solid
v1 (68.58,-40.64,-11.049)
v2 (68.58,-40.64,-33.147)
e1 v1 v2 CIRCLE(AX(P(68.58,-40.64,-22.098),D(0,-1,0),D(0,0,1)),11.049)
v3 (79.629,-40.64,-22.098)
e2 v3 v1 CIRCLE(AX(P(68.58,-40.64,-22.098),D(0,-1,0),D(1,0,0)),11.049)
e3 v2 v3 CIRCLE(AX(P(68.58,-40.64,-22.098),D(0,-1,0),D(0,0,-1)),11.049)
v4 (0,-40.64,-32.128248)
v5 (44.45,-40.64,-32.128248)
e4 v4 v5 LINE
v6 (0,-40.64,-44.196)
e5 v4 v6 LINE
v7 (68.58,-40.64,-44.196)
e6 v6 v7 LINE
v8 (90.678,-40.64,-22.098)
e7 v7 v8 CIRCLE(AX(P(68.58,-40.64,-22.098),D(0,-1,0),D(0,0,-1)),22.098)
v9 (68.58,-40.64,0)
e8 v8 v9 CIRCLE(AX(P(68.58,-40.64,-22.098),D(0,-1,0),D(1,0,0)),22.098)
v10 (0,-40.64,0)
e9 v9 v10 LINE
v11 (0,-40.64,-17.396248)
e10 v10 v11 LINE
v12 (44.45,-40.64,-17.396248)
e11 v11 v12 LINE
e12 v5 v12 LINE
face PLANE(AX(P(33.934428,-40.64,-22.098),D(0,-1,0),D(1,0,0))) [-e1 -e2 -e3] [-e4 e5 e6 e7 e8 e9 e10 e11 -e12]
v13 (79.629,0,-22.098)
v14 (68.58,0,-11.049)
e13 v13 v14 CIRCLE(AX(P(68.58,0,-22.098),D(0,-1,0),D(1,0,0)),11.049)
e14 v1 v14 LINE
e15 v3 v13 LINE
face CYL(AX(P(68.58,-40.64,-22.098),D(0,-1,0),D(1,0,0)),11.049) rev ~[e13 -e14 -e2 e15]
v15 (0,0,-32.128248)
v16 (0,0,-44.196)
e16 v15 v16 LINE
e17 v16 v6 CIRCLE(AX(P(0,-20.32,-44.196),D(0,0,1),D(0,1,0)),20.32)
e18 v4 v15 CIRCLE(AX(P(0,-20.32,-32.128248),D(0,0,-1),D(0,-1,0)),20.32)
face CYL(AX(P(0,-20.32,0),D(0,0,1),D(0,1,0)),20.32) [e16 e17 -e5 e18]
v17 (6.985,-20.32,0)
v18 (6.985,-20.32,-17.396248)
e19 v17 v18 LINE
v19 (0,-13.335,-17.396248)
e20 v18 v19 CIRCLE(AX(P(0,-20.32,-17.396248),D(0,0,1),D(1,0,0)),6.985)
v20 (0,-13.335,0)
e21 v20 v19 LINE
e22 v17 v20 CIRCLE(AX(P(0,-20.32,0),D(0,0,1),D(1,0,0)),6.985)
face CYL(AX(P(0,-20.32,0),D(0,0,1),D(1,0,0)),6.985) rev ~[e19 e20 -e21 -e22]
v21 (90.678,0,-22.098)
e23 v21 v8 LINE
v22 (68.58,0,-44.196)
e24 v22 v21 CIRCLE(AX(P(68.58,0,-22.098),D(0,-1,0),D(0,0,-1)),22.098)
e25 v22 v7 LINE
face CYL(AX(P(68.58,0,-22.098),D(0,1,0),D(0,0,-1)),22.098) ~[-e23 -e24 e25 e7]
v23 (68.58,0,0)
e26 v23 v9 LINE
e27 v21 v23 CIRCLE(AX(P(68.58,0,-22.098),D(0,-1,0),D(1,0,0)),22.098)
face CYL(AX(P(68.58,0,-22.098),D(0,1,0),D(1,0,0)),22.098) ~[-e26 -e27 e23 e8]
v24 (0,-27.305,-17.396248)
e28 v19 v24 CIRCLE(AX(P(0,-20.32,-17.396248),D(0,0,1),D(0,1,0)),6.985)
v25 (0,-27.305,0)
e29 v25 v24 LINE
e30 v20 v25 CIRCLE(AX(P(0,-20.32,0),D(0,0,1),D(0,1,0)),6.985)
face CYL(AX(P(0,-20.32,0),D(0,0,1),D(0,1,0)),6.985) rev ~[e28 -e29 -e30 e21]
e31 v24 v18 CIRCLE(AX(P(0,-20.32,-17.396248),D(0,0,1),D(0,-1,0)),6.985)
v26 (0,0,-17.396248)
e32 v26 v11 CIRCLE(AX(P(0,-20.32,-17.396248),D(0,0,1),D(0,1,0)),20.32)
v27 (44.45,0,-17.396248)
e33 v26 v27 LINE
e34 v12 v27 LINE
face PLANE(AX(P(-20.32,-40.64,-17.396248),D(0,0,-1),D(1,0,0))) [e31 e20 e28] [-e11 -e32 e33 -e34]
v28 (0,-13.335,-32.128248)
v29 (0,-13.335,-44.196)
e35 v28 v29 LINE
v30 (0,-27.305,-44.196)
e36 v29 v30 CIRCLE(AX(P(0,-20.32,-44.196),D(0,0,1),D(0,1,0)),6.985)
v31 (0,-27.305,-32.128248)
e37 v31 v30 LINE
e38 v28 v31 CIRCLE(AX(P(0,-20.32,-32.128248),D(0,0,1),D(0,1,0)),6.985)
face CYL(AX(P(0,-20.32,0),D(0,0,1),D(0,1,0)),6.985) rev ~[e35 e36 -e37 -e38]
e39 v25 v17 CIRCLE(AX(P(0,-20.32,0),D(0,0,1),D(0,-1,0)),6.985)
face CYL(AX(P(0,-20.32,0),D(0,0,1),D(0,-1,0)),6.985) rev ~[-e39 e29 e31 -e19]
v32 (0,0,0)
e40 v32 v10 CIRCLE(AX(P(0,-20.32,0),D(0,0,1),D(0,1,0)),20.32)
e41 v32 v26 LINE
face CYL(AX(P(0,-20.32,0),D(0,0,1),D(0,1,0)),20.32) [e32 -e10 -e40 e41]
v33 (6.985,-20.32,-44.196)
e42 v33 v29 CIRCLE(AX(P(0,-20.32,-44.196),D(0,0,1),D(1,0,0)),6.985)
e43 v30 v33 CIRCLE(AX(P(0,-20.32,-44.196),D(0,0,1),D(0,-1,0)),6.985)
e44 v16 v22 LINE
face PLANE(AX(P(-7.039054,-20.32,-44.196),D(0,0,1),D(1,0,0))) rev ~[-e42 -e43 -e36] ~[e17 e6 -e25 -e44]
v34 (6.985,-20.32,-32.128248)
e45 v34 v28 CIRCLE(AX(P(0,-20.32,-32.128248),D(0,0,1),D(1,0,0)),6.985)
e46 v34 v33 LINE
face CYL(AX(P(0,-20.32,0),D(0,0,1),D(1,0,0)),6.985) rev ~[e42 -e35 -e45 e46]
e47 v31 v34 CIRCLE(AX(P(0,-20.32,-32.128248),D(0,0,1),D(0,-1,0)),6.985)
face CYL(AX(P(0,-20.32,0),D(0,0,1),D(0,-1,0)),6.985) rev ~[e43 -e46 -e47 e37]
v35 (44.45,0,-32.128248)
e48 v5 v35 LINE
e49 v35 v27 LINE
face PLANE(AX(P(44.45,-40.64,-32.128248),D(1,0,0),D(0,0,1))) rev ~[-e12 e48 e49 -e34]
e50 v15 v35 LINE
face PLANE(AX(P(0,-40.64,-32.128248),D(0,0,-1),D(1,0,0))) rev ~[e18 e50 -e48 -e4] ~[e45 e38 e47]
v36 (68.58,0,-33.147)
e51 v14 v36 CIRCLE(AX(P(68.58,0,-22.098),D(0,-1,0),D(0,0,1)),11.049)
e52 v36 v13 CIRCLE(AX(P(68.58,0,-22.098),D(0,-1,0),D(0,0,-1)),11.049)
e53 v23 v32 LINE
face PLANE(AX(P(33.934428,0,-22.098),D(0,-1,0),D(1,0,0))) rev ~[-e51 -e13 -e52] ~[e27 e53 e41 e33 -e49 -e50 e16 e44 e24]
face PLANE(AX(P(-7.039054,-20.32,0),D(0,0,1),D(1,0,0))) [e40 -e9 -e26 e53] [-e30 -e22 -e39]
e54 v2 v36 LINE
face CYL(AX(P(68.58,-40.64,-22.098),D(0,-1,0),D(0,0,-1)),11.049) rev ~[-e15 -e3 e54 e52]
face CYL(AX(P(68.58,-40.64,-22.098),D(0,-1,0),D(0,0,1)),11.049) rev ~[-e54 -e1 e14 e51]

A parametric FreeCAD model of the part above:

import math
import FreeCAD as App
import Part
import Sketcher
Q = App.Units.Quantity


def add_polygon(sketch, points):
    """Adds a closed chain of lines whose ends are joined by coincident constraints."""
    first, n = sketch.GeometryCount, len(points)
    for a, b in zip(points, points[1:] + points[:1]):
        sketch.addGeometry(Part.LineSegment(App.Vector(*a, 0), App.Vector(*b, 0)), False)
    for i in range(n):
        sketch.addConstraint(Sketcher.Constraint("Coincident", first + i, 2, first + (i + 1) % n, 1))

doc = App.newDocument("Part")
params = doc.addObject("Spreadsheet::Sheet", "Params")
for row, (alias, value) in enumerate([
    ("sketch1_radius", "0.87 in"),
    ("sketch1_width", "2.7 in"),
    ("pad1_length", "1.6 in"),
    ("sketch2_radius", "0.8 in"),
    ("pad2_length", "1.74 in"),
    ("sketch3_width", "1.75 in"),
    ("sketch3_height", "0.58 in"),
    ("sketch4_width", "0.8 in"),
    ("sketch4_height", "0.58 in"),
    ("sketch5_radius", "0.275 in"),
    ("sketch6_radius", "0.435 in"),
], start=1):
    params.set(f"A{row}", alias)
    params.set(f"B{row}", "=" + value)
    params.setAlias(f"B{row}", alias)

body = doc.addObject("PartDesign::Body", "Body")

# Sketch on XZ plane
sketch1 = body.newObject("Sketcher::SketchObject", "Sketch")
sketch1.AttachmentSupport = (doc.getObject("XZ_Plane"), [""])
sketch1.MapMode = "FlatFace"
sketch1.addGeometry([
    Part.LineSegment(App.Vector(68.58, 0, 0), App.Vector(0, 0, 0)),  # 0
    Part.LineSegment(App.Vector(0, 0, 0), App.Vector(0, -44.196, 0)),  # 1
    Part.LineSegment(App.Vector(0, -44.196, 0), App.Vector(68.58, -44.196, 0)),  # 2
    Part.ArcOfCircle(Part.Circle(App.Vector(68.58, -22.098, 0), App.Vector(0, 0, 1), 22.098), math.radians(-90), math.radians(0)),  # 3
    Part.ArcOfCircle(Part.Circle(App.Vector(68.58, -22.098, 0), App.Vector(0, 0, 1), 22.098), math.radians(0), math.radians(90)),  # 4
], False)
sketch1.addConstraint([
    Sketcher.Constraint("Coincident", 0, 2, 1, 1),
    Sketcher.Constraint("Coincident", 1, 2, 2, 1),
    Sketcher.Constraint("Tangent", 2, 2, 3, 1),
    Sketcher.Constraint("Tangent", 3, 2, 4, 1),
    Sketcher.Constraint("Tangent", 4, 2, 0, 1),
    Sketcher.Constraint("Horizontal", 0),
    Sketcher.Constraint("Vertical", 1),
    Sketcher.Constraint("Horizontal", 2),
    Sketcher.Constraint("Coincident", 0, 2, -1, 1),
    Sketcher.Constraint("Equal", 3, 4),
    Sketcher.Constraint("Horizontal", 4, 3, 3, 2),
    Sketcher.Constraint("Radius", 3, Q("0.87 in")),
    Sketcher.Constraint("DistanceX", 0, 2, 0, 1, Q("2.7 in")),
])
sketch1.setExpression("Constraints[11]", "Params.sketch1_radius")
sketch1.setExpression("Constraints[12]", "Params.sketch1_width")
pad1 = body.newObject("PartDesign::Pad", "Pad")
pad1.Profile = sketch1
pad1.setExpression("Length", "Params.pad1_length")

# Sketch on XY plane
sketch2 = body.newObject("Sketcher::SketchObject", "Sketch001")
sketch2.AttachmentSupport = (doc.getObject("XY_Plane"), [""])
sketch2.MapMode = "FlatFace"
sketch2.addGeometry([
    Part.LineSegment(App.Vector(0, -40.64, 0), App.Vector(0, 0, 0)),
    Part.ArcOfCircle(Part.Circle(App.Vector(0, -20.32, 0), App.Vector(0, 0, 1), 20.32), math.radians(90), math.radians(270)),
], False)
sketch2.addConstraint([
    Sketcher.Constraint("Coincident", 0, 1, 1, 2),
    Sketcher.Constraint("Coincident", 1, 1, 0, 2),
    Sketcher.Constraint("Vertical", 0),
    Sketcher.Constraint("Coincident", 1, 1, -1, 1),
    Sketcher.Constraint("PointOnObject", 1, 3, -2),
    Sketcher.Constraint("Radius", 1, Q("0.8 in")),
])
sketch2.setExpression("Constraints[5]", "Params.sketch2_radius")
pad2 = body.newObject("PartDesign::Pad", "Pad001")
pad2.Profile = sketch2
pad2.setExpression("Length", "Params.pad2_length")
pad2.Reversed = True

# Sketch on XZ plane
sketch3 = body.newObject("Sketcher::SketchObject", "Sketch002")
sketch3.AttachmentSupport = (doc.getObject("XZ_Plane"), [""])
sketch3.MapMode = "FlatFace"
sketch3.AttachmentOffset = App.Placement(App.Vector(0, 0, 1.6 * 25.4), App.Rotation())
add_polygon(sketch3, [(0, -17.396248), (0, -32.128248), (44.45, -32.128248), (44.45, -17.396248)])  # lines 0-3
sketch3.addConstraint([
    Sketcher.Constraint("Vertical", 0),
    Sketcher.Constraint("Horizontal", 1),
    Sketcher.Constraint("Vertical", 2),
    Sketcher.Constraint("Horizontal", 3),
    Sketcher.Constraint("PointOnObject", 0, 2, -2),
    Sketcher.Constraint("DistanceX", 1, 1, 1, 2, Q("1.75 in")),
    Sketcher.Constraint("DistanceY", 0, 2, 0, 1, Q("0.58 in")),
    Sketcher.Constraint("DistanceY", 0, 2, -1, 1, Q("32.128248 mm")),
])
sketch3.setExpression("Constraints[9]", "Params.sketch3_width")
sketch3.setExpression("Constraints[10]", "Params.sketch3_height")
pocket1 = body.newObject("PartDesign::Pocket", "Pocket")
pocket1.Profile = sketch3
pocket1.Type = "ThroughAll"

# Sketch on XZ plane
sketch4 = body.newObject("Sketcher::SketchObject", "Sketch003")
sketch4.AttachmentSupport = (doc.getObject("XZ_Plane"), [""])
sketch4.MapMode = "FlatFace"
sketch4.AttachmentOffset = App.Placement(App.Vector(0, 0, 1.6 * 25.4), App.Rotation())
add_polygon(sketch4, [(-20.32, -17.396248), (-20.32, -32.128248), (0, -32.128248), (0, -17.396248)])  # lines 0-3
sketch4.addConstraint([
    Sketcher.Constraint("Vertical", 0),
    Sketcher.Constraint("Horizontal", 1),
    Sketcher.Constraint("Vertical", 2),
    Sketcher.Constraint("Horizontal", 3),
    Sketcher.Constraint("PointOnObject", 1, 2, -2),
    Sketcher.Constraint("DistanceX", 1, 1, 1, 2, Q("0.8 in")),
    Sketcher.Constraint("DistanceY", 0, 2, 0, 1, Q("0.58 in")),
    Sketcher.Constraint("DistanceY", 0, 2, -1, 1, Q("32.128248 mm")),
])
sketch4.setExpression("Constraints[9]", "Params.sketch4_width")
sketch4.setExpression("Constraints[10]", "Params.sketch4_height")
pocket2 = body.newObject("PartDesign::Pocket", "Pocket001")
pocket2.Profile = sketch4
pocket2.Type = "ThroughAll"

# Sketch on XY plane
sketch5 = body.newObject("Sketcher::SketchObject", "Sketch004")
sketch5.AttachmentSupport = (doc.getObject("XY_Plane"), [""])
sketch5.MapMode = "FlatFace"
sketch5.addGeometry([
    Part.ArcOfCircle(Part.Circle(App.Vector(0, -20.32, 0), App.Vector(0, 0, 1), 6.985), math.radians(90), math.radians(270)),
    Part.ArcOfCircle(Part.Circle(App.Vector(0, -20.32, 0), App.Vector(0, 0, 1), 6.985), math.radians(-90), math.radians(0)),
    Part.ArcOfCircle(Part.Circle(App.Vector(0, -20.32, 0), App.Vector(0, 0, 1), 6.985), math.radians(0), math.radians(90)),
], False)
sketch5.addConstraint([
    Sketcher.Constraint("Tangent", 0, 2, 1, 1),
    Sketcher.Constraint("Tangent", 1, 2, 2, 1),
    Sketcher.Constraint("Tangent", 2, 2, 0, 1),
    Sketcher.Constraint("PointOnObject", 0, 3, -2),
    Sketcher.Constraint("PointOnObject", 0, 2, -2),
    Sketcher.Constraint("PointOnObject", 2, 2, -2),
    Sketcher.Constraint("Horizontal", 2, 3, 1, 2),
    Sketcher.Constraint("Radius", 0, Q("0.275 in")),
    Sketcher.Constraint("DistanceY", 0, 3, -1, 1, Q("0.8 in")),
])
sketch5.setExpression("Constraints[7]", "Params.sketch5_radius")
pocket3 = body.newObject("PartDesign::Pocket", "Pocket002")
pocket3.Profile = sketch5
pocket3.Type = "ThroughAll"

# Sketch on XZ plane
sketch6 = body.newObject("Sketcher::SketchObject", "Sketch005")
sketch6.AttachmentSupport = (doc.getObject("XZ_Plane"), [""])
sketch6.MapMode = "FlatFace"
sketch6.AttachmentOffset = App.Placement(App.Vector(0, 0, 1.6 * 25.4), App.Rotation())
sketch6.addGeometry([
    Part.ArcOfCircle(Part.Circle(App.Vector(68.58, -22.098, 0), App.Vector(0, 0, 1), 11.049), math.radians(0), math.radians(90)),
    Part.ArcOfCircle(Part.Circle(App.Vector(68.58, -22.098, 0), App.Vector(0, 0, 1), 11.049), math.radians(90), math.radians(270)),
    Part.ArcOfCircle(Part.Circle(App.Vector(68.58, -22.098, 0), App.Vector(0, 0, 1), 11.049), math.radians(-90), math.radians(0)),
], False)
sketch6.addConstraint([
    Sketcher.Constraint("Tangent", 0, 2, 1, 1),
    Sketcher.Constraint("Tangent", 1, 2, 2, 1),
    Sketcher.Constraint("Tangent", 2, 2, 0, 1),
    Sketcher.Constraint("Horizontal", 1, 3, 2, 2),
    Sketcher.Constraint("Vertical", 2, 3, 0, 2),
    Sketcher.Constraint("Vertical", 0, 2, 1, 2),
    Sketcher.Constraint("Radius", 0, Q("0.435 in")),
    Sketcher.Constraint("DistanceX", -1, 1, 0, 3, Q("2.7 in")),
    Sketcher.Constraint("DistanceY", 0, 3, -1, 1, Q("0.87 in")),
])
sketch6.setExpression("Constraints[6]", "Params.sketch6_radius")
pocket4 = body.newObject("PartDesign::Pocket", "Pocket003")
pocket4.Profile = sketch6
pocket4.Type = "ThroughAll"

doc.recompute()
